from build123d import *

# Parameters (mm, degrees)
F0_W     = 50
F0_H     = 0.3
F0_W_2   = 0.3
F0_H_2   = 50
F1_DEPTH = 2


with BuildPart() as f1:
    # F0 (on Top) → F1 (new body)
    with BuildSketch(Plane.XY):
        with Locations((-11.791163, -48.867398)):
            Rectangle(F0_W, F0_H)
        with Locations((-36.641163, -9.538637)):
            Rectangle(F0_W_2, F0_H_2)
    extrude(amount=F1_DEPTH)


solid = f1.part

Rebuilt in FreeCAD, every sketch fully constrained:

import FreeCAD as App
import Part
import Sketcher

V = App.Vector
Q = App.Units.Quantity

doc = App.newDocument("Part")
body = doc.addObject("PartDesign::Body", "Body")
body.AllowCompound = True

sketch1 = doc.addObject("Sketcher::SketchObject", "Sketch")
body.addObject(sketch1)
sketch1.AttachmentSupport = (doc.XY_Plane, [""])
sketch1.MapMode = "FlatFace"
sketch1.addGeometry([
    Part.LineSegment(V(-36.79, -48.72, 0), V(-36.79, -49.02, 0)),
    Part.LineSegment(V(-36.79, -49.02, 0), V(13.21, -49.02, 0)),
    Part.LineSegment(V(13.21, -49.02, 0), V(13.21, -48.72, 0)),
    Part.LineSegment(V(13.21, -48.72, 0), V(-36.79, -48.72, 0)),
    Part.LineSegment(V(-36.79, 15.46, 0), V(-36.79, -34.54, 0)),
    Part.LineSegment(V(-36.79, -34.54, 0), V(-36.49, -34.54, 0)),
    Part.LineSegment(V(-36.49, -34.54, 0), V(-36.49, 15.46, 0)),
    Part.LineSegment(V(-36.49, 15.46, 0), V(-36.79, 15.46, 0)),
], False)
sketch1.addConstraint([
    Sketcher.Constraint("Coincident", 0, 2, 1, 1),
    Sketcher.Constraint("Coincident", 1, 2, 2, 1),
    Sketcher.Constraint("Coincident", 2, 2, 3, 1),
    Sketcher.Constraint("Coincident", 3, 2, 0, 1),
    Sketcher.Constraint("Coincident", 4, 2, 5, 1),
    Sketcher.Constraint("Coincident", 5, 2, 6, 1),
    Sketcher.Constraint("Coincident", 6, 2, 7, 1),
    Sketcher.Constraint("Coincident", 7, 2, 4, 1),
    Sketcher.Constraint("Vertical", 0),
    Sketcher.Constraint("Horizontal", 1),
    Sketcher.Constraint("Vertical", 2),
    Sketcher.Constraint("Horizontal", 3),
    Sketcher.Constraint("Vertical", 4),
    Sketcher.Constraint("Horizontal", 5),
    Sketcher.Constraint("Vertical", 6),
    Sketcher.Constraint("Horizontal", 7),
    Sketcher.Constraint("Vertical", 3, 2, 4, 2),
    Sketcher.Constraint("Equal", 7, 0),
    Sketcher.Constraint("Equal", 3, 4),
    Sketcher.Constraint("DistanceX", 1, 1, 1, 2, Q("50 mm")),
    Sketcher.Constraint("DistanceX", 5, 1, 5, 2, Q("0.3 mm")),
    Sketcher.Constraint("DistanceY", 2, 2, -1, 1, Q("48.717398 mm")),
    Sketcher.Constraint("DistanceY", 3, 2, 4, 2, Q("14.178761 mm")),
    Sketcher.Constraint("DistanceX", 0, 2, -1, 1, Q("36.791163 mm")),
])
pad1 = doc.addObject("PartDesign::Pad", "Pad")
body.addObject(pad1)
pad1.Profile = sketch1
pad1.Length = 2

doc.recompute()
